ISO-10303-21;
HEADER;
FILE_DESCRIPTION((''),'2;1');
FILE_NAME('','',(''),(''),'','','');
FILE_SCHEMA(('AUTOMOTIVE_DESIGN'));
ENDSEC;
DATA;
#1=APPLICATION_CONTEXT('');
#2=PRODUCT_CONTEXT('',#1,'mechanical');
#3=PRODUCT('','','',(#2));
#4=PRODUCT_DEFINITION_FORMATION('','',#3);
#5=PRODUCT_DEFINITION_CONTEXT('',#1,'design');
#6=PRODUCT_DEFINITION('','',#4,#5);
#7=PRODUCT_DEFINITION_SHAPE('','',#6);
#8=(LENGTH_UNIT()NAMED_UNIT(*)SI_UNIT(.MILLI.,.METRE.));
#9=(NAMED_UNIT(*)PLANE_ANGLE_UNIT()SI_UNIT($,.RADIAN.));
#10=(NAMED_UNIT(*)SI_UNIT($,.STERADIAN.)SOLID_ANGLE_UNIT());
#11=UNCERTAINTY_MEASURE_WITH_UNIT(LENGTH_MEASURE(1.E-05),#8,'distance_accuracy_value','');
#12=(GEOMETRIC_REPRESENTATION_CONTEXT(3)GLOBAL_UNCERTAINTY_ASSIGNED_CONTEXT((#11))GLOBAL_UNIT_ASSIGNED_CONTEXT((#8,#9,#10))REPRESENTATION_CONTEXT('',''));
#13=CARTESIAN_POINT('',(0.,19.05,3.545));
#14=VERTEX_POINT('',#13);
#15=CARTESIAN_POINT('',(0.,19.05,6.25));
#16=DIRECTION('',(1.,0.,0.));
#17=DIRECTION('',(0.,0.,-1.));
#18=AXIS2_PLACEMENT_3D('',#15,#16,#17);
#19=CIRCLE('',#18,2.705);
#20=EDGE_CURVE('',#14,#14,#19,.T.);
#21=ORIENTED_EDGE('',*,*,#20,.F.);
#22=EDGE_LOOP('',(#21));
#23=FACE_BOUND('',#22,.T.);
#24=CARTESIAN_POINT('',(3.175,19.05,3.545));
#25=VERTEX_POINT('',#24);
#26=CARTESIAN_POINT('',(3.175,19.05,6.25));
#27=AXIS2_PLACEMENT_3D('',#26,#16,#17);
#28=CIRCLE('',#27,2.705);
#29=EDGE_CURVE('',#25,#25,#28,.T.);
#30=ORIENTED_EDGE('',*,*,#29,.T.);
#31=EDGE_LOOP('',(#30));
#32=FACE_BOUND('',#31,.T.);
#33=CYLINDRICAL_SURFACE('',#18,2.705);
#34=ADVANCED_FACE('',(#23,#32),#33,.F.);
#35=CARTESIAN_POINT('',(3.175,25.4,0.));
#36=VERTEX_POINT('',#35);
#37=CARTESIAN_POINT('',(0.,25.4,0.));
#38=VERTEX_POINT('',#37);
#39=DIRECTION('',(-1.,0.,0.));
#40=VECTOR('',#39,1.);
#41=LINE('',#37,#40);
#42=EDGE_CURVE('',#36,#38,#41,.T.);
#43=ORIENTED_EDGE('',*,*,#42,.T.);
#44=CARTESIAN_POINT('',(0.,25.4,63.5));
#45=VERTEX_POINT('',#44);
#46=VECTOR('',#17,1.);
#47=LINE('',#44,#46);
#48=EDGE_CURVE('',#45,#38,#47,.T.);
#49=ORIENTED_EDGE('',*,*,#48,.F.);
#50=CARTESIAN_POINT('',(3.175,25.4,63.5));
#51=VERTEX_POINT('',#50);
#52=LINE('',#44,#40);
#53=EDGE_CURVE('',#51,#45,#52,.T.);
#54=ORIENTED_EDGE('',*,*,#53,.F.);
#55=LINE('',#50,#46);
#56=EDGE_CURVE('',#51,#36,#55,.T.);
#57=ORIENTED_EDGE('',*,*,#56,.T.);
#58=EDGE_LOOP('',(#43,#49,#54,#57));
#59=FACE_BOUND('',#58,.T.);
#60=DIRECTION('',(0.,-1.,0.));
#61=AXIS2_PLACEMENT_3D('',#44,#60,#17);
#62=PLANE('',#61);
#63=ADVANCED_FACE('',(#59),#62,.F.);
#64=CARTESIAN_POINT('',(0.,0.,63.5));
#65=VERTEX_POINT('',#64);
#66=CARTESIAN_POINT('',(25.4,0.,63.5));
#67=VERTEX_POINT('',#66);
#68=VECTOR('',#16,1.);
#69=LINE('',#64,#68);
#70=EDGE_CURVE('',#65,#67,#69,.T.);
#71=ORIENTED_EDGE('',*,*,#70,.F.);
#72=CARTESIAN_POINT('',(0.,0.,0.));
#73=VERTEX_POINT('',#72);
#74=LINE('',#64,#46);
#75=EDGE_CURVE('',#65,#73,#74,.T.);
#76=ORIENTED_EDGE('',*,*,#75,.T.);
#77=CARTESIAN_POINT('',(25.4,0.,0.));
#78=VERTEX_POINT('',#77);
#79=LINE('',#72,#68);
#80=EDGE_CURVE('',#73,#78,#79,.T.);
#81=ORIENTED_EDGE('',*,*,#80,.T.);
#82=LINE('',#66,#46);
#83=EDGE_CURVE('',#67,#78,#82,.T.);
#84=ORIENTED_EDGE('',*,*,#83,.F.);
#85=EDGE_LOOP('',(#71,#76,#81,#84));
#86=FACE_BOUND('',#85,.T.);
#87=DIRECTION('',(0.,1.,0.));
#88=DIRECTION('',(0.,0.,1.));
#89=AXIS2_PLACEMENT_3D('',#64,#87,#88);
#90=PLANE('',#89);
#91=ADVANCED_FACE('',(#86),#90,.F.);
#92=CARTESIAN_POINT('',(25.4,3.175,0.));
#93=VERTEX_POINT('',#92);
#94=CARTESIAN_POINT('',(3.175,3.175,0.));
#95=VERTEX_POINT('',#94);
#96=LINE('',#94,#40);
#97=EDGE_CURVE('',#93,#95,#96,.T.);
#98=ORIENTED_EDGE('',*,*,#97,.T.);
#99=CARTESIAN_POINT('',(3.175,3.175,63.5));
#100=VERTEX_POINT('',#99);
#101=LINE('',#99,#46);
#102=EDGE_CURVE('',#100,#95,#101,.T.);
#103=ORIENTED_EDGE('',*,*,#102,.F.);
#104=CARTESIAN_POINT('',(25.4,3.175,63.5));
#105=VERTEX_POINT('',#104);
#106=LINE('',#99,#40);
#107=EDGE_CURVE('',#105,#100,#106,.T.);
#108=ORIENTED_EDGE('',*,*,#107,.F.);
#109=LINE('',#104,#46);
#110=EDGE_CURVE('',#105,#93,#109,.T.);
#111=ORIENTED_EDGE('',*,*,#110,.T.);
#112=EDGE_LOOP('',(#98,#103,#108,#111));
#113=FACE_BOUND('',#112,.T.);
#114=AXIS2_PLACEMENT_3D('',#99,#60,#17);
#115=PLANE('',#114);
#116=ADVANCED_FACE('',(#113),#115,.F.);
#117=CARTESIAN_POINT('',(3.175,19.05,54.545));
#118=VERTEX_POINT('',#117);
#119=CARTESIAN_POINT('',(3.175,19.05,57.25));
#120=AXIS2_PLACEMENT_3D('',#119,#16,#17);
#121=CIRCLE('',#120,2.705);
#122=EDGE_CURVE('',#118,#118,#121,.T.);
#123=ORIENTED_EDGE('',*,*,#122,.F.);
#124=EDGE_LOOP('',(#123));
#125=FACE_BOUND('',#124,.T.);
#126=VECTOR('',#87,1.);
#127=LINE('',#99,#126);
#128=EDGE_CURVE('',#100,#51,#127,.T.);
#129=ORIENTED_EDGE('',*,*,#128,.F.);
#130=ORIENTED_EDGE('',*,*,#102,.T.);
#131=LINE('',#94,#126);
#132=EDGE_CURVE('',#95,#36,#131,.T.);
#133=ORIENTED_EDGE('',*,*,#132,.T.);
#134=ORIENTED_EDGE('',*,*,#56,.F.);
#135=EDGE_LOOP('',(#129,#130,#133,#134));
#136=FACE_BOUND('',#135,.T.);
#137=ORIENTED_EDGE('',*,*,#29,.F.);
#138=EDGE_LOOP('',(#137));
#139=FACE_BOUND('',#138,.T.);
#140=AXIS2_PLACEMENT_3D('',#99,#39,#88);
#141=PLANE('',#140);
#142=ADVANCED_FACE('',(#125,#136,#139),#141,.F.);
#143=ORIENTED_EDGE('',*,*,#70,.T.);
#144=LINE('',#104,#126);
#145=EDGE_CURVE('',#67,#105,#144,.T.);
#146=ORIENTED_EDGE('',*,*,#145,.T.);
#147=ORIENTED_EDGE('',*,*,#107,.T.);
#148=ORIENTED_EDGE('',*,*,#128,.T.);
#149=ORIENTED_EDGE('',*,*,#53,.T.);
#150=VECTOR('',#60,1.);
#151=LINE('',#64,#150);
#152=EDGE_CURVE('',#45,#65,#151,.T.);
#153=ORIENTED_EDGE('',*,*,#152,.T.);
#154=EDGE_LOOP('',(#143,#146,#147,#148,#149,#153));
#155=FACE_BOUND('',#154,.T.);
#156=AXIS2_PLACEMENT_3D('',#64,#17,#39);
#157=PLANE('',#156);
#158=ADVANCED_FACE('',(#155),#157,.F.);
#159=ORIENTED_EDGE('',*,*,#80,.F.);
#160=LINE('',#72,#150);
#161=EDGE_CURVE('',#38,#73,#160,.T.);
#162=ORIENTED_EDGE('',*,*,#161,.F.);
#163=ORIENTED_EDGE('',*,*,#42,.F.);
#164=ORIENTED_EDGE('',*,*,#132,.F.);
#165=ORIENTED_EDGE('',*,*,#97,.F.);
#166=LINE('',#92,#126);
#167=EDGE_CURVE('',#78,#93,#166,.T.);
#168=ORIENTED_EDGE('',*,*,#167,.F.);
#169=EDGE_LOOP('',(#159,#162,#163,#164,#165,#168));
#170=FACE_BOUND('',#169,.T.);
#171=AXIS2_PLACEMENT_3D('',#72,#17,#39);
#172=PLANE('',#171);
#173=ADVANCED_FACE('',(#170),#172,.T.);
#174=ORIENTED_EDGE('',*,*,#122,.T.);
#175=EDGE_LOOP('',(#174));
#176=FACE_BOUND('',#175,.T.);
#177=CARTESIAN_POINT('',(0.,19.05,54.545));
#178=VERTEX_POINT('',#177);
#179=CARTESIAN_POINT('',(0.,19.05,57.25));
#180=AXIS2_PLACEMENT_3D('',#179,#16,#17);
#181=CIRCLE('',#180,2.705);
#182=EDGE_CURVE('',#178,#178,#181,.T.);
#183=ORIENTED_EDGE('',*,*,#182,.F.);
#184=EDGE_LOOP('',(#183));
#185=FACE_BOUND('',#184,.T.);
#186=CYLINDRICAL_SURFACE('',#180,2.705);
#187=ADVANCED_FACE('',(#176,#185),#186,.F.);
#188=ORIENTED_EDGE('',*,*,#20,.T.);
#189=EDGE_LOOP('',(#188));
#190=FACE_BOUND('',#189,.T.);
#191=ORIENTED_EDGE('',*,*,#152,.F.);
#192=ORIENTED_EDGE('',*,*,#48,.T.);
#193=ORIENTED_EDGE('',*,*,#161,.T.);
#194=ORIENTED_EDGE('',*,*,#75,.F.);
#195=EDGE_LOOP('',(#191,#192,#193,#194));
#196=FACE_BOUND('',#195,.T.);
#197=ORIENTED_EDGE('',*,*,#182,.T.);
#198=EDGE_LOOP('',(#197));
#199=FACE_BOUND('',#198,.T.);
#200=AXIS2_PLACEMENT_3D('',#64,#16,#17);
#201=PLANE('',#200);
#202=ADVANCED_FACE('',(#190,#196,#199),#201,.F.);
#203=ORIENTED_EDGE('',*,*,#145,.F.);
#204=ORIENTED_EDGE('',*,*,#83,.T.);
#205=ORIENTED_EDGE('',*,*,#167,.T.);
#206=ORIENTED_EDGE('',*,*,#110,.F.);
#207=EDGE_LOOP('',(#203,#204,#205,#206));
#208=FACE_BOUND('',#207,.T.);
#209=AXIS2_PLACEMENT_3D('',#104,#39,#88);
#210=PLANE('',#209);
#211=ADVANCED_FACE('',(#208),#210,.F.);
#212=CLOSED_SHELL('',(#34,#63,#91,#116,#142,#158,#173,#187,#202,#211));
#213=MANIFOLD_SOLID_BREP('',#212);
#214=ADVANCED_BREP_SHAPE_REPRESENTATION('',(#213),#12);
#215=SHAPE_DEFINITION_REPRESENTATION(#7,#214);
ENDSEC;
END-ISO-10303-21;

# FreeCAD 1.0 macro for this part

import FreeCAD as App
import Part
import Sketcher
from FreeCAD import Vector
Q = App.Units.Quantity

doc = App.newDocument("Part")
params = doc.addObject("Spreadsheet::Sheet", "Params")
for row, (alias, value) in enumerate([
    ("sketch1_width", "1 in"),
    ("sketch1_width2", "0.875 in"),
    ("pad1_length", "2.5 in"),
], start=1):
    params.set(f"A{row}", alias)
    params.set(f"B{row}", "=" + value)
    params.setAlias(f"B{row}", alias)

body = doc.addObject("PartDesign::Body", "Body")

# Sketch on XY plane
sketch1 = body.newObject("Sketcher::SketchObject", "Sketch")
sketch1.AttachmentSupport = (doc.getObject("XY_Plane"), [""])
sketch1.MapMode = "FlatFace"
sketch1.addGeometry(Part.LineSegment(Vector(0, 0, 0), Vector(25.4, 0, 0)), False)
sketch1.addGeometry(Part.LineSegment(Vector(25.4, 0, 0), Vector(25.4, 3.2, 0)), False)
sketch1.addGeometry(Part.LineSegment(Vector(25.4, 3.2, 0), Vector(3.2, 3.2, 0)), False)
sketch1.addGeometry(Part.LineSegment(Vector(3.2, 3.2, 0), Vector(3.2, 25.4, 0)), False)
sketch1.addGeometry(Part.LineSegment(Vector(3.2, 25.4, 0), Vector(0, 25.4, 0)), False)
sketch1.addGeometry(Part.LineSegment(Vector(0, 25.4, 0), Vector(0, 0, 0)), False)
sketch1.addConstraint(Sketcher.Constraint("Coincident", 0, 2, 1, 1))
sketch1.addConstraint(Sketcher.Constraint("Coincident", 1, 2, 2, 1))
sketch1.addConstraint(Sketcher.Constraint("Coincident", 2, 2, 3, 1))
sketch1.addConstraint(Sketcher.Constraint("Coincident", 3, 2, 4, 1))
sketch1.addConstraint(Sketcher.Constraint("Coincident", 4, 2, 5, 1))
sketch1.addConstraint(Sketcher.Constraint("Coincident", 5, 2, 0, 1))
sketch1.addConstraint(Sketcher.Constraint("Horizontal", 0))
sketch1.addConstraint(Sketcher.Constraint("Vertical", 1))
sketch1.addConstraint(Sketcher.Constraint("Horizontal", 2))
sketch1.addConstraint(Sketcher.Constraint("Vertical", 3))
sketch1.addConstraint(Sketcher.Constraint("Horizontal", 4))
sketch1.addConstraint(Sketcher.Constraint("Vertical", 5))
sketch1.addConstraint(Sketcher.Constraint("Coincident", 5, 2, -1, 1))
sketch1.addConstraint(Sketcher.Constraint("Equal", 4, 1))
sketch1.addConstraint(Sketcher.Constraint("Equal", 2, 3))
sketch1.addConstraint(Sketcher.Constraint("DistanceX", 0, 1, 0, 2, Q("1 in")))
sketch1.addConstraint(Sketcher.Constraint("DistanceX", 2, 2, 2, 1, Q("0.875 in")))
sketch1.setExpression("Constraints[15]", "Params.sketch1_width")
sketch1.setExpression("Constraints[16]", "Params.sketch1_width2")
pad1 = body.newObject("PartDesign::Pad", "Pad")
pad1.Profile = sketch1
pad1.setExpression("Length", "Params.pad1_length")

# Sketch on YZ plane
sketch2 = body.newObject("Sketcher::SketchObject", "Sketch001")
sketch2.AttachmentSupport = (doc.getObject("YZ_Plane"), [""])
sketch2.MapMode = "FlatFace"
sketch2.AttachmentOffset = App.Placement(Vector(0, 0, 0.125 * 25.4), App.Rotation())
sketch2.addGeometry(Part.Circle(Vector(19.1, 57.2, 0), Vector(0, 0, 1), 2.7), False)
sketch2.addGeometry(Part.Circle(Vector(19.1, 6.2, 0), Vector(0, 0, 1), 2.7), False)
sketch2.addConstraint(Sketcher.Constraint("Equal", 0, 1))
sketch2.addConstraint(Sketcher.Constraint("Vertical", 0, 3, 1, 3))
sketch2.addConstraint(Sketcher.Constraint("Diameter", 0, 5.41))
sketch2.addConstraint(Sketcher.Constraint("DistanceX", -1, 1, 0, 3, Q("0.75 in")))
sketch2.addConstraint(Sketcher.Constraint("DistanceY", -1, 1, 0, 3, 57.25))
sketch2.addConstraint(Sketcher.Constraint("DistanceY", -1, 1, 1, 3, 6.25))
pocket1 = body.newObject("PartDesign::Pocket", "Pocket")
pocket1.Profile = sketch2
pocket1.Type = "ThroughAll"

doc.recompute()
